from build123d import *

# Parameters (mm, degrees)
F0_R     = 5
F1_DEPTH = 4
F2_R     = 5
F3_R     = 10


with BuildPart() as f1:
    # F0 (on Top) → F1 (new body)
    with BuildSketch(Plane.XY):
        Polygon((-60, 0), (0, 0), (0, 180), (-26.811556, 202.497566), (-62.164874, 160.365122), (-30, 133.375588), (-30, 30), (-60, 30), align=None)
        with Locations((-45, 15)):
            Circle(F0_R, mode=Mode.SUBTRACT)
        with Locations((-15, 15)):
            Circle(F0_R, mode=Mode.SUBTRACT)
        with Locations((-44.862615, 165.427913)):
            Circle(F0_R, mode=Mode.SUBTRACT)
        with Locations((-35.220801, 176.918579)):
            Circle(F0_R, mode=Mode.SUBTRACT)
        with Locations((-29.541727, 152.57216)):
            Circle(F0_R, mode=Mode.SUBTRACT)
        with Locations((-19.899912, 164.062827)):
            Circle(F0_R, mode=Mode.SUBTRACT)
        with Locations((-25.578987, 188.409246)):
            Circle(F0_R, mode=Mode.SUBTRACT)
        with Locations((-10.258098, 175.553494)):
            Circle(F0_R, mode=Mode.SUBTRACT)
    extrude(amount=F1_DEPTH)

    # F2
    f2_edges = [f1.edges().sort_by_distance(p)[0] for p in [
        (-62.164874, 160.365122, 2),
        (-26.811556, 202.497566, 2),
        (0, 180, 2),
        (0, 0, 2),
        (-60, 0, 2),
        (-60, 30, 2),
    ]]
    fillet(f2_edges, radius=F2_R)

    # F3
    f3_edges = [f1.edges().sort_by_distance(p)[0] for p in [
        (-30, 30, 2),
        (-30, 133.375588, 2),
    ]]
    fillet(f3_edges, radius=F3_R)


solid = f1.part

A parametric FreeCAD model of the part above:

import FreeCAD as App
import Part
import Sketcher
from FreeCAD import Vector
Q = App.Units.Quantity


def edges_at(feature, points):
    """Names of the edges that pass closest to the given points."""
    edges = feature.Shape.Edges
    near = lambda p: min(range(len(edges)), key=lambda i: edges[i].distToShape(Part.Vertex(*p))[0])
    return sorted({f"Edge{near(p) + 1}" for p in points})


def add_polygon(sketch, points):
    """Adds a closed chain of lines whose ends are joined by coincident constraints."""
    first, n = sketch.GeometryCount, len(points)
    for a, b in zip(points, points[1:] + points[:1]):
        sketch.addGeometry(Part.LineSegment(App.Vector(*a, 0), App.Vector(*b, 0)), False)
    for i in range(n):
        sketch.addConstraint(Sketcher.Constraint("Coincident", first + i, 2, first + (i + 1) % n, 1))

doc = App.newDocument("Part")
body = doc.addObject("PartDesign::Body", "Body")

# Sketch on XY plane
sketch1 = body.newObject("Sketcher::SketchObject", "Sketch")
sketch1.AttachmentSupport = (doc.getObject("XY_Plane"), [""])
sketch1.MapMode = "FlatFace"
add_polygon(sketch1, [(-60, 0), (0, 0), (0, 180), (-27, 202), (-62, 160), (-30, 133), (-30, 30), (-60, 30)])  # lines 0-7
sketch1.addGeometry(Part.Circle(Vector(-45, 15, 0), Vector(0, 0, 1), 5), False)  # 8
sketch1.addGeometry(Part.Circle(Vector(-15, 15, 0), Vector(0, 0, 1), 5), False)  # 9
sketch1.addGeometry(Part.Circle(Vector(-45, 165, 0), Vector(0, 0, 1), 5), False)  # 10
sketch1.addGeometry(Part.Circle(Vector(-30, 153, 0), Vector(0, 0, 1), 5), False)  # 11
sketch1.addGeometry(Part.Circle(Vector(-35, 177, 0), Vector(0, 0, 1), 5), False)  # 12
sketch1.addGeometry(Part.Circle(Vector(-20, 164, 0), Vector(0, 0, 1), 5), False)  # 13
sketch1.addGeometry(Part.Circle(Vector(-26, 188, 0), Vector(0, 0, 1), 5), False)  # 14
sketch1.addGeometry(Part.Circle(Vector(-10, 176, 0), Vector(0, 0, 1), 5), False)  # 15
sketch1.addConstraint(Sketcher.Constraint("Horizontal", 0))
sketch1.addConstraint(Sketcher.Constraint("Vertical", 1))
sketch1.addConstraint(Sketcher.Constraint("Vertical", 5))
sketch1.addConstraint(Sketcher.Constraint("Horizontal", 6))
sketch1.addConstraint(Sketcher.Constraint("Vertical", 7))
sketch1.addConstraint(Sketcher.Constraint("Coincident", 0, 2, -1, 1))
sketch1.addConstraint(Sketcher.Constraint("Equal", 8, 9))
sketch1.addConstraint(Sketcher.Constraint("Equal", 9, 10))
sketch1.addConstraint(Sketcher.Constraint("Equal", 10, 11))
sketch1.addConstraint(Sketcher.Constraint("Equal", 11, 12))
sketch1.addConstraint(Sketcher.Constraint("Equal", 12, 13))
sketch1.addConstraint(Sketcher.Constraint("Equal", 13, 14))
sketch1.addConstraint(Sketcher.Constraint("Equal", 14, 15))
sketch1.addConstraint(Sketcher.Constraint("Perpendicular", 2, 3))
sketch1.addConstraint(Sketcher.Constraint("Perpendicular", 3, 4))
sketch1.addConstraint(Sketcher.Constraint("Horizontal", 8, 3, 9, 3))
sketch1.addConstraint(Sketcher.Constraint("Equal", 6, 7))
sketch1.addConstraint(Sketcher.Constraint("Diameter", 8, Q("10 mm")))
sketch1.addConstraint(Sketcher.Constraint("DistanceX", 0, 1, 0, 2, Q("60 mm")))
sketch1.addConstraint(Sketcher.Constraint("DistanceX", 6, 2, 6, 1, Q("30 mm")))
sketch1.addConstraint(Sketcher.Constraint("DistanceY", 1, 1, 1, 2, Q("180 mm")))
sketch1.addConstraint(Sketcher.Constraint("Angle", 2, Q("140.000001 deg")))
sketch1.addConstraint(Sketcher.Constraint("Distance", 2, Q("35 mm")))
sketch1.addConstraint(Sketcher.Constraint("Distance", 3, Q("54.999999 mm")))
sketch1.addConstraint(Sketcher.Constraint("DistanceX", 8, 3, -1, 1, Q("45 mm")))
sketch1.addConstraint(Sketcher.Constraint("DistanceY", -1, 1, 8, 3, Q("15 mm")))
sketch1.addConstraint(Sketcher.Constraint("DistanceX", 9, 3, -1, 1, Q("15 mm")))
sketch1.addConstraint(Sketcher.Constraint("DistanceX", 12, 3, -1, 1, Q("35.220801 mm")))
sketch1.addConstraint(Sketcher.Constraint("DistanceY", -1, 1, 11, 3, Q("152.57216 mm")))
sketch1.addConstraint(Sketcher.Constraint("DistanceY", -1, 1, 12, 3, Q("176.918579 mm")))
sketch1.addConstraint(Sketcher.Constraint("DistanceX", 12, 3, 13, 3, Q("15.320889 mm")))
sketch1.addConstraint(Sketcher.Constraint("DistanceY", 13, 3, 12, 3, Q("12.855752 mm")))
sketch1.addConstraint(Sketcher.Constraint("DistanceY", 13, 3, 14, 3, Q("24.346419 mm")))
sketch1.addConstraint(Sketcher.Constraint("DistanceX", 11, 3, 14, 3, Q("3.96274 mm")))
sketch1.addConstraint(Sketcher.Constraint("DistanceX", 14, 3, 15, 3, Q("15.320889 mm")))
sketch1.addConstraint(Sketcher.Constraint("DistanceY", 15, 3, 14, 3, Q("12.855752 mm")))
sketch1.addConstraint(Sketcher.Constraint("DistanceY", 10, 3, 15, 3, Q("10.125581 mm")))
sketch1.addConstraint(Sketcher.Constraint("DistanceX", 2, 2, 14, 3, Q("1.232569 mm")))
sketch1.addConstraint(Sketcher.Constraint("DistanceX", 3, 2, 10, 3, Q("17.302259 mm")))
pad1 = body.newObject("PartDesign::Pad", "Pad")
pad1.Profile = sketch1
pad1.Length = 4
doc.recompute()

fillet = body.newObject("PartDesign::Fillet", "Fillet")
fillet.Base = (pad1, edges_at(pad1, [
    (-62.165, 160.365, 2),
    (-26.812, 202.498, 2),
    (0, 180, 2),
    (0, 0, 2),
    (-60, 0, 2),
    (-60, 30, 2),
]))
fillet.Radius = 5
doc.recompute()

fillet2 = body.newObject("PartDesign::Fillet", "Fillet001")
fillet2.Base = (fillet, edges_at(fillet, [(-30, 30, 2), (-30, 133.376, 2)]))
fillet2.Radius = 10

doc.recompute()
